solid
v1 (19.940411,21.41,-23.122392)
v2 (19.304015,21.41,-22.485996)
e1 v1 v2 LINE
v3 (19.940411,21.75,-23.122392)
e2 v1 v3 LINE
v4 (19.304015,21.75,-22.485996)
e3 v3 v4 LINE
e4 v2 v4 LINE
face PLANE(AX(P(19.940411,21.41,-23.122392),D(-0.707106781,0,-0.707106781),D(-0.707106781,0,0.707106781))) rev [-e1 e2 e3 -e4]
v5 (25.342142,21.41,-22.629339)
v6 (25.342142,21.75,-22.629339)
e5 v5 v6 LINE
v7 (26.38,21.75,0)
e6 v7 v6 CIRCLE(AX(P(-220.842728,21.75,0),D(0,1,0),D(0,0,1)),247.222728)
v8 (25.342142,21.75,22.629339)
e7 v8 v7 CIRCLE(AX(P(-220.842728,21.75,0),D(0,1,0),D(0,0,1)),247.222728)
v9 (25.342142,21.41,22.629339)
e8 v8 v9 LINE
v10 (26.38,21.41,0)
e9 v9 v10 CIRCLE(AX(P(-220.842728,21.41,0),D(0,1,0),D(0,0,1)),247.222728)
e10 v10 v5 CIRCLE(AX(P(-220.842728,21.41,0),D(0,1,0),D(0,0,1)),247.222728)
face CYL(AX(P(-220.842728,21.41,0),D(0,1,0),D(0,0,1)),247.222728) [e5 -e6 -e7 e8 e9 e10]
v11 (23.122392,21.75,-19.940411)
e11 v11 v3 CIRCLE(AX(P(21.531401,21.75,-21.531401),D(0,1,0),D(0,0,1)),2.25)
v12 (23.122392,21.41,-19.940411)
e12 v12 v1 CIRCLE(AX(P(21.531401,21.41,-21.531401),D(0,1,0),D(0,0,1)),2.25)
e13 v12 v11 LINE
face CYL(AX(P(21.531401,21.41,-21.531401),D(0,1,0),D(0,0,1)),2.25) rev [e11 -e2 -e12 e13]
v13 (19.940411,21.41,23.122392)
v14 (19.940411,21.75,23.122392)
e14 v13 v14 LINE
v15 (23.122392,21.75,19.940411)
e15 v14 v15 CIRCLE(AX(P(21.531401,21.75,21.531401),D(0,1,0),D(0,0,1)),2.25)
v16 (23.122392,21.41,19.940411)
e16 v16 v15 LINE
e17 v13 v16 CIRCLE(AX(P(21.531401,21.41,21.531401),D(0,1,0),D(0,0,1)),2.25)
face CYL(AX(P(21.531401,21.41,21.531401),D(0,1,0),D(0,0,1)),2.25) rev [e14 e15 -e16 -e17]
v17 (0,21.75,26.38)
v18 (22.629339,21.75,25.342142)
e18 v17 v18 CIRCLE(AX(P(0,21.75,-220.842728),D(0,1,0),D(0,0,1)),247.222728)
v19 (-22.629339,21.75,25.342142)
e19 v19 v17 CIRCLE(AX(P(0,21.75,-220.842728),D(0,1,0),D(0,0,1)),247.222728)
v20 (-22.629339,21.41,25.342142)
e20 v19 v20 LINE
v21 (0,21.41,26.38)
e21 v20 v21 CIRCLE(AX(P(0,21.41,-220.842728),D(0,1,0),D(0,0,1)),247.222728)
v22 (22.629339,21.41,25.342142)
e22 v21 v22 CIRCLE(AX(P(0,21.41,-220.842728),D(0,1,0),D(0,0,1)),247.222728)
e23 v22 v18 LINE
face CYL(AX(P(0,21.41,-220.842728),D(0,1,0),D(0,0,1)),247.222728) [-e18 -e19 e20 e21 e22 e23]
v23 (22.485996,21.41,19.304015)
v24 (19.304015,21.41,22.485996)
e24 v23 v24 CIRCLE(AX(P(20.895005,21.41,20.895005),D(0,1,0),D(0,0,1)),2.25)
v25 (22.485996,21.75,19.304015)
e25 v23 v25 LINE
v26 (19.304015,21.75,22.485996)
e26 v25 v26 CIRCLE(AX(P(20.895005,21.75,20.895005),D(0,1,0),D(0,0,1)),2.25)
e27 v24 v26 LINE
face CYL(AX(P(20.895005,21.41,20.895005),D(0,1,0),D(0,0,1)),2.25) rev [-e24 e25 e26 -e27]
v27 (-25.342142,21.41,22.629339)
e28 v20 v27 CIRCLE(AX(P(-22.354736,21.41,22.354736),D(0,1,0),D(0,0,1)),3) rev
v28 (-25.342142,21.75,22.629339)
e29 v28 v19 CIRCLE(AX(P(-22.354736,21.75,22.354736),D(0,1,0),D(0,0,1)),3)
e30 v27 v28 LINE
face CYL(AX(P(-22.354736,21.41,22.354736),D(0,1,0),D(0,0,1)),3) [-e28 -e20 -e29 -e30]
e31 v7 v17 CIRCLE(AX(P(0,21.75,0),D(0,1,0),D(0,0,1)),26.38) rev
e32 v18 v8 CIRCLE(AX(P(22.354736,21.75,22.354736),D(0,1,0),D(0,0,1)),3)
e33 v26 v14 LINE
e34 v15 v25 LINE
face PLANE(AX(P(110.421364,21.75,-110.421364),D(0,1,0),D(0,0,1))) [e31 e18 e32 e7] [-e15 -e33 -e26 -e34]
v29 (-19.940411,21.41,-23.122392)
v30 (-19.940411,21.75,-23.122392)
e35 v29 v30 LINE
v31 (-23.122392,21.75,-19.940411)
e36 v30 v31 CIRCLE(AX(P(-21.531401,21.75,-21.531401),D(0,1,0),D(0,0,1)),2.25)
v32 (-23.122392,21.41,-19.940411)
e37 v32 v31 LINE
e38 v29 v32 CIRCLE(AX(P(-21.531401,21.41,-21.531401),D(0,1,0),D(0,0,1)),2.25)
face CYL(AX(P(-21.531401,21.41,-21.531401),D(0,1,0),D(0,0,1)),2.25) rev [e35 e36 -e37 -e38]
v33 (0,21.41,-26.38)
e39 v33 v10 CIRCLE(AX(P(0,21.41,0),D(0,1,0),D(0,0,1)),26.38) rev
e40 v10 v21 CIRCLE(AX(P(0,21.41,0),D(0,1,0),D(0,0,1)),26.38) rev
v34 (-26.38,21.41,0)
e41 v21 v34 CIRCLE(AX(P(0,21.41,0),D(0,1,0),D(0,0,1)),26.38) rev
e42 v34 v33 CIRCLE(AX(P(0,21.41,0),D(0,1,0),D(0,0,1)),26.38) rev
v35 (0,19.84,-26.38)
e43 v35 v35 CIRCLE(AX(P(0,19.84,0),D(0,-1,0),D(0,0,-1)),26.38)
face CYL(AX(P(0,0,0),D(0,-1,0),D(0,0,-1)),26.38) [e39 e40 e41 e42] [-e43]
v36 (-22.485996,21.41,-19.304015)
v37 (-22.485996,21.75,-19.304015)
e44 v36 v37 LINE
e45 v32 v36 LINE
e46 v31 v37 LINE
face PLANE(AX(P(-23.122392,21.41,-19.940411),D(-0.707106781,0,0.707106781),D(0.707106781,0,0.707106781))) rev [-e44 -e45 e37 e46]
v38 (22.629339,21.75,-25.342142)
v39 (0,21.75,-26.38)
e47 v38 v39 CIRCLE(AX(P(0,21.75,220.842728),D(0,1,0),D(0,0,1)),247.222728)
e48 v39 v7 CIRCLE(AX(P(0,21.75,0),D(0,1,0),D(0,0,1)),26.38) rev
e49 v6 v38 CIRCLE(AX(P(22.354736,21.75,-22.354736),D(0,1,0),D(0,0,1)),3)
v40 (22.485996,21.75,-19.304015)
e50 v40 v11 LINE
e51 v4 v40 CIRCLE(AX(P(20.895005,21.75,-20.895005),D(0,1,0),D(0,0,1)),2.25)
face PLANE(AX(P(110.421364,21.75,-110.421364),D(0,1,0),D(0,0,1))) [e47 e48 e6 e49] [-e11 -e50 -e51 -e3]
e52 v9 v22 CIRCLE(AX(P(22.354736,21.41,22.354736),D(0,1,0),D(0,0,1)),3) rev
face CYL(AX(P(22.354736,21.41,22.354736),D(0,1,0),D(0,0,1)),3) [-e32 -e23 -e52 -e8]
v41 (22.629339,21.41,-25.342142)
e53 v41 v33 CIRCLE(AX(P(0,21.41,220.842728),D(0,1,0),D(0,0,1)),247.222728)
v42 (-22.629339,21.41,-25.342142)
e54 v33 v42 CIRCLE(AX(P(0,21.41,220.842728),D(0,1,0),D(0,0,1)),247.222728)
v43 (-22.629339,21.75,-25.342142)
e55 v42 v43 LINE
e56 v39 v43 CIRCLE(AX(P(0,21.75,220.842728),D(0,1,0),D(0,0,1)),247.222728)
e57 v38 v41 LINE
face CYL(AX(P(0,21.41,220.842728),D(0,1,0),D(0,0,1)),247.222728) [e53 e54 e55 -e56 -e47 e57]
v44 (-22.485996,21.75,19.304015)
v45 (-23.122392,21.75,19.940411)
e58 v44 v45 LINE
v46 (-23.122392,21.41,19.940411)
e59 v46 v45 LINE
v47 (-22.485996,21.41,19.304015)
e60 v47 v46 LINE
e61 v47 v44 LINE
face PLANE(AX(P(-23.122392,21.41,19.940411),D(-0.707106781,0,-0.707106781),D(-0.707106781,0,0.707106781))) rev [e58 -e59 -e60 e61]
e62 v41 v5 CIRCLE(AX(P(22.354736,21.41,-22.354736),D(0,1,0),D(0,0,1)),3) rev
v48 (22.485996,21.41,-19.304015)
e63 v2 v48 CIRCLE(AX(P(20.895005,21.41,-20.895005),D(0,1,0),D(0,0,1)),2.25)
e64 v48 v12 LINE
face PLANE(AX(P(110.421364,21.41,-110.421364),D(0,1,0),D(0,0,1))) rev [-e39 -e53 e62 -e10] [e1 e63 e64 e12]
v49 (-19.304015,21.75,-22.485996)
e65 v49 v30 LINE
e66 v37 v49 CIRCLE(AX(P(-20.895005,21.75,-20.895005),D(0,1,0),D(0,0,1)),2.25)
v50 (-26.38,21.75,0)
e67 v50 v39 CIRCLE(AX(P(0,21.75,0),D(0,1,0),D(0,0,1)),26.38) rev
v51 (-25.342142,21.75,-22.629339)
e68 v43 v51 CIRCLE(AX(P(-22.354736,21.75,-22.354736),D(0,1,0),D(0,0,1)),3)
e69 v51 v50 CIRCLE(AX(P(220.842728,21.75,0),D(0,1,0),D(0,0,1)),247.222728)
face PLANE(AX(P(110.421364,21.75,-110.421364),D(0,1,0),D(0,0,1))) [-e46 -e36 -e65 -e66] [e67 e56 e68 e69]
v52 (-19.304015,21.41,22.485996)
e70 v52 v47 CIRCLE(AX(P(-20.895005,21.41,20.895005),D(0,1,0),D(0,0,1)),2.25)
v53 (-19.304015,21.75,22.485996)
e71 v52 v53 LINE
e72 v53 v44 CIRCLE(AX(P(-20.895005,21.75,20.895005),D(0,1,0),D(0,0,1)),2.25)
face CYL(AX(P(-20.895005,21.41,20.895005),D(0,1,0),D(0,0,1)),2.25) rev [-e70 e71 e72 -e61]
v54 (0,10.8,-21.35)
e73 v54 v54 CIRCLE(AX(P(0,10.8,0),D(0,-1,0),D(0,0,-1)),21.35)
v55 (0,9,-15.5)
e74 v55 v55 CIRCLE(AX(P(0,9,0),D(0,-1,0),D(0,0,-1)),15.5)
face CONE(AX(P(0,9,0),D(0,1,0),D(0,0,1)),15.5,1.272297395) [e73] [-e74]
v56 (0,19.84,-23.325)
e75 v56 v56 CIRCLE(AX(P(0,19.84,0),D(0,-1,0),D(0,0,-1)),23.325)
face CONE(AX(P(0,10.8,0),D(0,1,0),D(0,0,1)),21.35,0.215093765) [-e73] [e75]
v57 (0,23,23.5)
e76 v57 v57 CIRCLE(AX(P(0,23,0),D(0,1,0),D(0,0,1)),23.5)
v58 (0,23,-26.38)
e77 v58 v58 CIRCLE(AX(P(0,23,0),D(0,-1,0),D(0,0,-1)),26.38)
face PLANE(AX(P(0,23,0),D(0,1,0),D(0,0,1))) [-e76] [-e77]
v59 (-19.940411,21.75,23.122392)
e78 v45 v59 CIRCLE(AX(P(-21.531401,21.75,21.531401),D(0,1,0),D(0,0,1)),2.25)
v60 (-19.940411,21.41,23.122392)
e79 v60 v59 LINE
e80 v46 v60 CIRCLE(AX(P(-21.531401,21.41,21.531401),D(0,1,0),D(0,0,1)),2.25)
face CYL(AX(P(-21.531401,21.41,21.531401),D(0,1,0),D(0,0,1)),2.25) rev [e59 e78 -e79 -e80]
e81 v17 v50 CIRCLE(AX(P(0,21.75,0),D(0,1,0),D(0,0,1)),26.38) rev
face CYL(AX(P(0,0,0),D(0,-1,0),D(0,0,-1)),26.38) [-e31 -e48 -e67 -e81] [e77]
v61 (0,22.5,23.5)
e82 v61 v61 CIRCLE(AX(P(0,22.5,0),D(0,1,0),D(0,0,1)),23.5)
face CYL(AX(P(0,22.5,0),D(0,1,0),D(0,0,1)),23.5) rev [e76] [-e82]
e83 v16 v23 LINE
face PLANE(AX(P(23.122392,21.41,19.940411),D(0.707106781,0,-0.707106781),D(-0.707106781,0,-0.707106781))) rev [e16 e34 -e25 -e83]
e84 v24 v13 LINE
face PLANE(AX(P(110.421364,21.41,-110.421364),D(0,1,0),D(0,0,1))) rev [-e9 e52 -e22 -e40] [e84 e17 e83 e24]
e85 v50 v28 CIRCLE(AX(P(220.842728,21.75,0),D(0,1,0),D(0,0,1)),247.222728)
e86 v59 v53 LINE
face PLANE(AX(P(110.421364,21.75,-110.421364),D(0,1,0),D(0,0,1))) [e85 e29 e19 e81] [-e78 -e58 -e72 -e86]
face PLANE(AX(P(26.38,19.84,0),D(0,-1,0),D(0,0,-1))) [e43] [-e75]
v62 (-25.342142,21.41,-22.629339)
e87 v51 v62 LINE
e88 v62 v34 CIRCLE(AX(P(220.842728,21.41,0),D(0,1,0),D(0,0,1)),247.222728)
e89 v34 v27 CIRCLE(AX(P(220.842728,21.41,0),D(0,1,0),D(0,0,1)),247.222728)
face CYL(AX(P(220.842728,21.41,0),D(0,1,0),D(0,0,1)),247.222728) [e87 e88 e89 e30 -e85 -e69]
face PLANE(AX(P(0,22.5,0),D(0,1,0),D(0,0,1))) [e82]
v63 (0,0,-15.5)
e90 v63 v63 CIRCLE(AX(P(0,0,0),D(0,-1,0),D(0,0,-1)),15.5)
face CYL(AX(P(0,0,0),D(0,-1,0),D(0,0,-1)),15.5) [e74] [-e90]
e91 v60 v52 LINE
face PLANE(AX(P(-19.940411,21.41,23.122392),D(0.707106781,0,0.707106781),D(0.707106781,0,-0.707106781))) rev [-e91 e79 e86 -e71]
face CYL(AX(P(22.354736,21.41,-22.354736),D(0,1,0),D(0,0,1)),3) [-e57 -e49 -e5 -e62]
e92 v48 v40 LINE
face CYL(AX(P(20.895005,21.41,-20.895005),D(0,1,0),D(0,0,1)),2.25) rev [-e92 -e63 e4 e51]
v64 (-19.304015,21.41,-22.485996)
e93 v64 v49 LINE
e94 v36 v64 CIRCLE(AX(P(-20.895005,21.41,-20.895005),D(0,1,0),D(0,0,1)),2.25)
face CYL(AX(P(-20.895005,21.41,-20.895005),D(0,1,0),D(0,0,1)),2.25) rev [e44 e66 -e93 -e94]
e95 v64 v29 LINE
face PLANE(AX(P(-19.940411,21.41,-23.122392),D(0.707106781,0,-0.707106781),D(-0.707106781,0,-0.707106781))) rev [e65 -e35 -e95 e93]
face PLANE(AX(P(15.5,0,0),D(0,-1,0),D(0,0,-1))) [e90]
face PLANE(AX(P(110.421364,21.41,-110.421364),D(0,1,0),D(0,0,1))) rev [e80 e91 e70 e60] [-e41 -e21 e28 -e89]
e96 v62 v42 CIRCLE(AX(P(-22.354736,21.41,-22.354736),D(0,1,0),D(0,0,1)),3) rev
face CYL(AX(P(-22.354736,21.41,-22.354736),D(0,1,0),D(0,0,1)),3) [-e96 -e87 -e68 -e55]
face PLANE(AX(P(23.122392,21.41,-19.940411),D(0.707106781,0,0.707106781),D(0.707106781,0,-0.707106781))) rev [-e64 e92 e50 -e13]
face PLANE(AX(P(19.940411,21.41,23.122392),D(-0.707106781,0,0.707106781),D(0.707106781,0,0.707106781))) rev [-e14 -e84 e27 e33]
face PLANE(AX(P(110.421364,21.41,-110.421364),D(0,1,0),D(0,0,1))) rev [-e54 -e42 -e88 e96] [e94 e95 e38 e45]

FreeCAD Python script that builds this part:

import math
import FreeCAD as App
import Part
import Sketcher
Q = App.Units.Quantity


def edges_at(feature, points):
    """Names of the edges that pass closest to the given points."""
    edges = feature.Shape.Edges
    near = lambda p: min(range(len(edges)), key=lambda i: edges[i].distToShape(Part.Vertex(*p))[0])
    return sorted({f"Edge{near(p) + 1}" for p in points})

doc = App.newDocument("Part")
body = doc.addObject("PartDesign::Body", "Body")

sketch1 = body.newObject("Sketcher::SketchObject", "Sketch")
sketch1.AttachmentSupport = (doc.getObject("XY_Plane"), [""])
sketch1.MapMode = "FlatFace"
sketch1.addGeometry([
    Part.LineSegment(App.Vector(0, 23, 0), App.Vector(0, 0, 0)),
    Part.LineSegment(App.Vector(0, 0, 0), App.Vector(15.5, 0, 0)),
    Part.LineSegment(App.Vector(15.5, 0, 0), App.Vector(15.5, 9, 0)),
    Part.LineSegment(App.Vector(15.5, 9, 0), App.Vector(21.4, 10.8, 0)),
    Part.LineSegment(App.Vector(21.4, 10.8, 0), App.Vector(23.3, 19.8, 0)),
    Part.LineSegment(App.Vector(23.3, 19.8, 0), App.Vector(26.4, 19.8, 0)),
    Part.LineSegment(App.Vector(26.4, 19.8, 0), App.Vector(26.4, 23, 0)),
    Part.LineSegment(App.Vector(26.4, 23, 0), App.Vector(0, 23, 0)),
], False)
sketch1.addConstraint([
    Sketcher.Constraint("Coincident", 0, 2, 1, 1),
    Sketcher.Constraint("Coincident", 1, 2, 2, 1),
    Sketcher.Constraint("Coincident", 2, 2, 3, 1),
    Sketcher.Constraint("Coincident", 3, 2, 4, 1),
    Sketcher.Constraint("Coincident", 4, 2, 5, 1),
    Sketcher.Constraint("Coincident", 5, 2, 6, 1),
    Sketcher.Constraint("Coincident", 6, 2, 7, 1),
    Sketcher.Constraint("Coincident", 7, 2, 0, 1),
    Sketcher.Constraint("Vertical", 0),
    Sketcher.Constraint("Horizontal", 1),
    Sketcher.Constraint("Vertical", 2),
    Sketcher.Constraint("Horizontal", 5),
    Sketcher.Constraint("Vertical", 6),
    Sketcher.Constraint("Horizontal", 7),
    Sketcher.Constraint("Coincident", 0, 2, -1, 1),
    Sketcher.Constraint("DistanceY", 0, 2, 0, 1, Q("23 mm")),
    Sketcher.Constraint("DistanceY", 2, 1, 2, 2, Q("9 mm")),
    Sketcher.Constraint("DistanceX", 1, 1, 1, 2, Q("15.5 mm")),
    Sketcher.Constraint("DistanceX", 7, 2, 7, 1, Q("26.38 mm")),
    Sketcher.Constraint("DistanceY", 6, 1, 6, 2, Q("3.16 mm")),
    Sketcher.Constraint("DistanceY", -1, 1, 3, 2, Q("10.8 mm")),
    Sketcher.Constraint("DistanceX", 5, 1, 5, 2, Q("3.055 mm")),
    Sketcher.Constraint("DistanceX", -1, 1, 3, 2, Q("21.35 mm")),
])
revolution = body.newObject("PartDesign::Revolution", "Revolution")
revolution.Profile = sketch1
revolution.ReferenceAxis = (sketch1, ["V_Axis"])
revolution.Angle = 360

sketch2 = body.newObject("Sketcher::SketchObject", "Sketch001")
sketch2.AttachmentSupport = (doc.getObject("XZ_Plane"), [""])
sketch2.MapMode = "FlatFace"
sketch2.AttachmentOffset = App.Placement(App.Vector(0, 0, -21.75), App.Rotation())
sketch2.addGeometry([
    Part.ArcOfCircle(Part.Circle(App.Vector(-220.8, 0, 0), App.Vector(0, 0, 1), 247.2), math.radians(-5.83), math.radians(5.83)),
    Part.ArcOfCircle(Part.Circle(App.Vector(0, 220.8, 0), App.Vector(0, 0, 1), 247.2), math.radians(-95.83), math.radians(-84.17)),
    Part.ArcOfCircle(Part.Circle(App.Vector(220.8, 0, 0), App.Vector(0, 0, 1), 247.2), math.radians(174.17), math.radians(185.83)),
    Part.ArcOfCircle(Part.Circle(App.Vector(0, -220.8, 0), App.Vector(0, 0, 1), 247.2), math.radians(84.17), math.radians(95.83)),
    Part.ArcOfCircle(Part.Circle(App.Vector(-21.5, 21.5, 0), App.Vector(0, 0, 1), 2.2), math.radians(45), math.radians(225)),
    Part.LineSegment(App.Vector(-23.1, 19.9, 0), App.Vector(-22.5, 19.3, 0)),
    Part.ArcOfCircle(Part.Circle(App.Vector(-20.9, 20.9, 0), App.Vector(0, 0, 1), 2.2), math.radians(-135), math.radians(45)),
    Part.LineSegment(App.Vector(-19.3, 22.5, 0), App.Vector(-19.9, 23.1, 0)),
    Part.ArcOfCircle(Part.Circle(App.Vector(21.5, 21.5, 0), App.Vector(0, 0, 1), 2.2), math.radians(-45), math.radians(135)),
    Part.LineSegment(App.Vector(19.9, 23.1, 0), App.Vector(19.3, 22.5, 0)),
    Part.ArcOfCircle(Part.Circle(App.Vector(20.9, 20.9, 0), App.Vector(0, 0, 1), 2.2), math.radians(135), math.radians(315)),
    Part.LineSegment(App.Vector(22.5, 19.3, 0), App.Vector(23.1, 19.9, 0)),
    Part.ArcOfCircle(Part.Circle(App.Vector(-21.5, -21.5, 0), App.Vector(0, 0, 1), 2.2), math.radians(135), math.radians(315)),
    Part.LineSegment(App.Vector(-19.9, -23.1, 0), App.Vector(-19.3, -22.5, 0)),
    Part.ArcOfCircle(Part.Circle(App.Vector(-20.9, -20.9, 0), App.Vector(0, 0, 1), 2.2), math.radians(-45), math.radians(135)),
    Part.LineSegment(App.Vector(-22.5, -19.3, 0), App.Vector(-23.1, -19.9, 0)),
    Part.ArcOfCircle(Part.Circle(App.Vector(21.5, -21.5, 0), App.Vector(0, 0, 1), 2.2), math.radians(-135), math.radians(45)),
    Part.LineSegment(App.Vector(23.1, -19.9, 0), App.Vector(22.5, -19.3, 0)),
    Part.ArcOfCircle(Part.Circle(App.Vector(20.9, -20.9, 0), App.Vector(0, 0, 1), 2.2), math.radians(45), math.radians(225)),
    Part.LineSegment(App.Vector(19.3, -22.5, 0), App.Vector(19.9, -23.1, 0)),
], False)
sketch2.addConstraint([
    Sketcher.Constraint("Coincident", 0, 1, 1, 2),
    Sketcher.Constraint("Coincident", 1, 1, 2, 2),
    Sketcher.Constraint("Coincident", 2, 1, 3, 2),
    Sketcher.Constraint("Coincident", 3, 1, 0, 2),
    Sketcher.Constraint("Tangent", 4, 2, 5, 1),
    Sketcher.Constraint("Tangent", 5, 2, 6, 1),
    Sketcher.Constraint("Tangent", 6, 2, 7, 1),
    Sketcher.Constraint("Tangent", 7, 2, 4, 1),
    Sketcher.Constraint("Tangent", 8, 2, 9, 1),
    Sketcher.Constraint("Tangent", 9, 2, 10, 1),
    Sketcher.Constraint("Tangent", 10, 2, 11, 1),
    Sketcher.Constraint("Tangent", 11, 2, 8, 1),
    Sketcher.Constraint("Tangent", 12, 2, 13, 1),
    Sketcher.Constraint("Tangent", 13, 2, 14, 1),
    Sketcher.Constraint("Tangent", 14, 2, 15, 1),
    Sketcher.Constraint("Tangent", 15, 2, 12, 1),
    Sketcher.Constraint("Tangent", 16, 2, 17, 1),
    Sketcher.Constraint("Tangent", 17, 2, 18, 1),
    Sketcher.Constraint("Tangent", 18, 2, 19, 1),
    Sketcher.Constraint("Tangent", 19, 2, 16, 1),
    Sketcher.Constraint("Equal", 0, 1),
    Sketcher.Constraint("Equal", 1, 2),
    Sketcher.Constraint("Equal", 2, 3),
    Sketcher.Constraint("Equal", 4, 6),
    Sketcher.Constraint("Equal", 6, 8),
    Sketcher.Constraint("Equal", 8, 10),
    Sketcher.Constraint("Equal", 10, 12),
    Sketcher.Constraint("Equal", 12, 14),
    Sketcher.Constraint("Equal", 14, 16),
    Sketcher.Constraint("Equal", 16, 18),
    Sketcher.Constraint("Symmetric", 0, 3, 2, 3, -1, 1),
    Sketcher.Constraint("Symmetric", 1, 3, 3, 3, -1, 1),
    Sketcher.Constraint("Symmetric", 8, 3, 12, 3, -1, 1),
    Sketcher.Constraint("Symmetric", 10, 3, 14, 3, -1, 1),
    Sketcher.Constraint("Symmetric", 4, 3, 16, 3, -1, 1),
    Sketcher.Constraint("Symmetric", 6, 3, 18, 3, -1, 1),
    Sketcher.Constraint("Symmetric", 4, 3, 8, 3, -2),
    Sketcher.Constraint("Symmetric", 6, 3, 10, 3, -2),
    Sketcher.Constraint("PointOnObject", 0, 3, -1),
    Sketcher.Constraint("PointOnObject", 1, 3, -2),
    Sketcher.Constraint("Perpendicular", 7, 9),
    Sketcher.Constraint("Radius", 4, Q("2.25 mm")),
    Sketcher.Constraint("Distance", 5, Q("0.9 mm")),
    Sketcher.Constraint("Radius", 0, Q("247.222728 mm")),
    Sketcher.Constraint("DistanceX", 4, 3, -1, 1, Q("21.531401 mm")),
    Sketcher.Constraint("DistanceY", -1, 1, 4, 3, Q("21.531401 mm")),
    Sketcher.Constraint("DistanceX", 2, 1, 4, 2, Q("1.979899 mm")),
    Sketcher.Constraint("DistanceY", 8, 2, 3, 1, Q("1.979899 mm")),
])
pad1 = body.newObject("PartDesign::Pad", "Pad")
pad1.Profile = sketch2
pad1.Length = 0.34
doc.recompute()

fillet = body.newObject("PartDesign::Fillet", "Fillet")
fillet.Base = (pad1, edges_at(pad1, [
    (-25.102, 21.58, 25.102),
    (-25.102, 21.58, -25.102),
    (25.102, 21.58, -25.102),
    (25.102, 21.58, 25.102),
]))
fillet.Radius = 3

sketch3 = body.newObject("Sketcher::SketchObject", "Sketch002")
sketch3.AttachmentSupport = (doc.getObject("XZ_Plane"), [""])
sketch3.MapMode = "FlatFace"
sketch3.AttachmentOffset = App.Placement(App.Vector(0, 0, -23), App.Rotation())
sketch3.addGeometry(Part.Circle(App.Vector(0, 0, 0), App.Vector(0, 0, 1), 24), False)
sketch3.addConstraint([
    Sketcher.Constraint("Coincident", 0, 3, -1, 1),
    Sketcher.Constraint("Diameter", 0, Q("47 mm")),
])
pocket1 = body.newObject("PartDesign::Pocket", "Pocket")
pocket1.Profile = sketch3
pocket1.Length = 0.5
pocket1.Reversed = True

doc.recompute()
